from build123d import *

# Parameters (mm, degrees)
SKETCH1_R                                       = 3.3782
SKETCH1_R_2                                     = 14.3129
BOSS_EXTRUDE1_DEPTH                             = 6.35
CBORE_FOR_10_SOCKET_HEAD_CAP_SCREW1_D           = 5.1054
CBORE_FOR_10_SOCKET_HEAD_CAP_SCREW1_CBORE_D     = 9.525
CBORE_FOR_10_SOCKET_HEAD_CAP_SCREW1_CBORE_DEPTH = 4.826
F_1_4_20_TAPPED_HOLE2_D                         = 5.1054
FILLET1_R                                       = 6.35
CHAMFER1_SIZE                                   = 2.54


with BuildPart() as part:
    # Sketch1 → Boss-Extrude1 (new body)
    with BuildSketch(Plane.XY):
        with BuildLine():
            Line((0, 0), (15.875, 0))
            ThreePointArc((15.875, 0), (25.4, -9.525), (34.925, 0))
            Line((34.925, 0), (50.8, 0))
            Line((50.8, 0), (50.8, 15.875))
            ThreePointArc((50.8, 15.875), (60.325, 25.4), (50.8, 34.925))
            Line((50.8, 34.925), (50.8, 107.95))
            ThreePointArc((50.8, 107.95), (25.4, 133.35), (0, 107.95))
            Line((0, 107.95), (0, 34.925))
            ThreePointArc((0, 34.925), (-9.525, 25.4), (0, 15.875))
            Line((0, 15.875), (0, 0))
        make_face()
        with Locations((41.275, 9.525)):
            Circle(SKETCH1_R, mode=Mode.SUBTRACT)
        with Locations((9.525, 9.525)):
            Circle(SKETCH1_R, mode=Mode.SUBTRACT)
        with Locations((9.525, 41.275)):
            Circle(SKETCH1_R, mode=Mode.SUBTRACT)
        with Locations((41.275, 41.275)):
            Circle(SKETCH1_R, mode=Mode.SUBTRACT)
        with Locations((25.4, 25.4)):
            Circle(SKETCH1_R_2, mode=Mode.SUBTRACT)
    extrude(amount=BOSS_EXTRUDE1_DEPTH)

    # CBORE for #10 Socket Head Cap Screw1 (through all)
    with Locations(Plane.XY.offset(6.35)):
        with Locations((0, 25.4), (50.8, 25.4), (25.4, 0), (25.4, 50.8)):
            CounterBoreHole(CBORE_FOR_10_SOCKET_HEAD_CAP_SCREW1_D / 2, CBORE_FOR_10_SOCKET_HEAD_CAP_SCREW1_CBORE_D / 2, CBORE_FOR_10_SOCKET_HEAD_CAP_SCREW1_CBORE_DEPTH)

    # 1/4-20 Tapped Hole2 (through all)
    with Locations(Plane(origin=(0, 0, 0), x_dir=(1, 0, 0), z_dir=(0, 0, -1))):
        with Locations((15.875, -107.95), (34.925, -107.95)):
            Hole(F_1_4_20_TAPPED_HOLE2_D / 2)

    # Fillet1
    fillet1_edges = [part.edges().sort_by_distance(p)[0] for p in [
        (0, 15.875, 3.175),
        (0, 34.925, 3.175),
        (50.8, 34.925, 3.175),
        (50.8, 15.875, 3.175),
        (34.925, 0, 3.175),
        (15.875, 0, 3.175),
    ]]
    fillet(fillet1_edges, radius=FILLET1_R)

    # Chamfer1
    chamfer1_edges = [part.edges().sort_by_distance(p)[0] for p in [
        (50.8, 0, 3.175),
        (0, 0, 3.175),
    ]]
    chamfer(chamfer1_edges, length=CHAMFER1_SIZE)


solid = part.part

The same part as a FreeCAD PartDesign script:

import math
import FreeCAD as App
import Part
import Sketcher

V = App.Vector
Q = App.Units.Quantity


def edges_at(feature, points):
    """Names of the edges that pass closest to the given points."""
    edges = feature.Shape.Edges
    near = lambda p: min(range(len(edges)), key=lambda i: edges[i].distToShape(Part.Vertex(*p))[0])
    return sorted({f"Edge{near(p) + 1}" for p in points})

doc = App.newDocument("Part")
body = doc.addObject("PartDesign::Body", "Body")

sketch1 = doc.addObject("Sketcher::SketchObject", "Sketch")
body.addObject(sketch1)
sketch1.AttachmentSupport = (doc.XY_Plane, [""])
sketch1.MapMode = "FlatFace"
sketch1.addGeometry([
    Part.LineSegment(V(0, 0, 0), V(15.9, 0, 0)),
    Part.ArcOfCircle(Part.Circle(V(25.4, 0, 0), V(0, 0, 1), 9.5), math.radians(180), math.radians(360)),
    Part.LineSegment(V(34.9, 0, 0), V(50.8, 0, 0)),
    Part.LineSegment(V(50.8, 0, 0), V(50.8, 15.9, 0)),
    Part.ArcOfCircle(Part.Circle(V(50.8, 25.4, 0), V(0, 0, 1), 9.5), math.radians(-90), math.radians(90)),
    Part.LineSegment(V(50.8, 34.9, 0), V(50.8, 108, 0)),
    Part.ArcOfCircle(Part.Circle(V(25.4, 108, 0), V(0, 0, 1), 25.4), math.radians(0), math.radians(180)),
    Part.LineSegment(V(0, 108, 0), V(0, 34.9, 0)),
    Part.ArcOfCircle(Part.Circle(V(0, 25.4, 0), V(0, 0, 1), 9.5), math.radians(90), math.radians(270)),
    Part.LineSegment(V(0, 15.9, 0), V(0, 0, 0)),
    Part.Circle(V(9.5, 9.5, 0), V(0, 0, 1), 3.4),
    Part.Circle(V(41.3, 9.5, 0), V(0, 0, 1), 3.4),
    Part.Circle(V(25.4, 25.4, 0), V(0, 0, 1), 14.3),
    Part.Circle(V(9.5, 41.3, 0), V(0, 0, 1), 3.4),
    Part.Circle(V(41.3, 41.3, 0), V(0, 0, 1), 3.4),
], False)
sketch1.addConstraint([
    Sketcher.Constraint("Coincident", 0, 2, 1, 1),
    Sketcher.Constraint("Coincident", 1, 2, 2, 1),
    Sketcher.Constraint("Coincident", 2, 2, 3, 1),
    Sketcher.Constraint("Coincident", 3, 2, 4, 1),
    Sketcher.Constraint("Coincident", 4, 2, 5, 1),
    Sketcher.Constraint("Tangent", 5, 2, 6, 1),
    Sketcher.Constraint("Tangent", 6, 2, 7, 1),
    Sketcher.Constraint("Coincident", 7, 2, 8, 1),
    Sketcher.Constraint("Coincident", 8, 2, 9, 1),
    Sketcher.Constraint("Coincident", 9, 2, 0, 1),
    Sketcher.Constraint("Horizontal", 0),
    Sketcher.Constraint("Horizontal", 2),
    Sketcher.Constraint("Vertical", 3),
    Sketcher.Constraint("Vertical", 5),
    Sketcher.Constraint("Vertical", 7),
    Sketcher.Constraint("Vertical", 9),
    Sketcher.Constraint("Coincident", 9, 2, -1, 1),
    Sketcher.Constraint("Equal", 1, 4),
    Sketcher.Constraint("Equal", 4, 8),
    Sketcher.Constraint("Equal", 10, 11),
    Sketcher.Constraint("Equal", 11, 13),
    Sketcher.Constraint("Equal", 13, 14),
    Sketcher.Constraint("PointOnObject", 1, 3, -1),
    Sketcher.Constraint("PointOnObject", 8, 3, -2),
    Sketcher.Constraint("PointOnObject", 1, 2, -1),
    Sketcher.Constraint("PointOnObject", 6, 2, -2),
    Sketcher.Constraint("Horizontal", 4, 3, 8, 3),
    Sketcher.Constraint("Horizontal", 10, 3, 11, 3),
    Sketcher.Constraint("Horizontal", 8, 3, 12, 3),
    Sketcher.Constraint("Horizontal", 13, 3, 14, 3),
    Sketcher.Constraint("Vertical", 1, 3, 6, 3),
    Sketcher.Constraint("Vertical", 6, 3, 12, 3),
    Sketcher.Constraint("Vertical", 10, 3, 13, 3),
    Sketcher.Constraint("Vertical", 11, 3, 14, 3),
    Sketcher.Constraint("Vertical", 4, 3, 2, 2),
    Sketcher.Constraint("Vertical", 3, 2, 4, 2),
    Sketcher.Constraint("Equal", 2, 3),
    Sketcher.Constraint("Radius", 6, Q("1 in")),
    Sketcher.Constraint("Diameter", 10, Q("0.266 in")),
    Sketcher.Constraint("Diameter", 12, Q("1.127 in")),
    Sketcher.Constraint("Radius", 1, Q("0.375 in")),
    Sketcher.Constraint("DistanceX", 0, 2, 11, 3, Q("1 in")),
    Sketcher.Constraint("DistanceX", 10, 3, 1, 2, Q("1 in")),
    Sketcher.Constraint("DistanceY", 11, 3, 4, 2, Q("1 in")),
    Sketcher.Constraint("DistanceY", 5, 1, 5, 2, Q("2.875 in")),
    Sketcher.Constraint("DistanceY", 10, 3, 13, 3, Q("1.25 in")),
])
pad1 = doc.addObject("PartDesign::Pad", "Pad")
body.addObject(pad1)
pad1.Profile = sketch1
pad1.Length = Q("0.25 in")

sketch2 = doc.addObject("Sketcher::SketchObject", "Sketch001")
body.addObject(sketch2)
sketch2.AttachmentSupport = (doc.XY_Plane, [""])
sketch2.MapMode = "FlatFace"
sketch2.AttachmentOffset = App.Placement(V(0, 0, 0.25 * 25.4), App.Rotation())
sketch2.addGeometry([
    Part.Circle(V(0, 25.4, 0), V(0, 0, 1), 2.6),
    Part.Circle(V(50.8, 25.4, 0), V(0, 0, 1), 2.6),
    Part.Circle(V(25.4, 0, 0), V(0, 0, 1), 2.6),
    Part.Circle(V(25.4, 50.8, 0), V(0, 0, 1), 2.6),
], False)
sketch2.addConstraint([
    Sketcher.Constraint("Equal", 0, 1),
    Sketcher.Constraint("Equal", 1, 2),
    Sketcher.Constraint("Equal", 2, 3),
    Sketcher.Constraint("PointOnObject", 0, 3, -2),
    Sketcher.Constraint("PointOnObject", 2, 3, -1),
    Sketcher.Constraint("Horizontal", 0, 3, 1, 3),
    Sketcher.Constraint("Vertical", 2, 3, 3, 3),
    Sketcher.Constraint("Diameter", 0, Q("0.201 in")),
    Sketcher.Constraint("DistanceY", -1, 1, 0, 3, Q("1 in")),
    Sketcher.Constraint("DistanceX", -1, 1, 1, 3, Q("2 in")),
    Sketcher.Constraint("DistanceX", -1, 1, 2, 3, Q("1 in")),
    Sketcher.Constraint("DistanceY", -1, 1, 3, 3, Q("2 in")),
])
doc.recompute()
hole = doc.addObject("PartDesign::Hole", "Hole")
body.addObject(hole)
hole.Profile = sketch2
hole.ThreadType = "None"
hole.Diameter = Q("0.201 in")
hole.DepthType = "ThroughAll"
hole.HoleCutType = "Counterbore"
hole.HoleCutDiameter = Q("0.375 in")
hole.HoleCutDepth = Q("0.19 in")

sketch3 = doc.addObject("Sketcher::SketchObject", "Sketch002")
body.addObject(sketch3)
sketch3.AttachmentSupport = (doc.XY_Plane, [""])
sketch3.MapMode = "FlatFace"
sketch3.addGeometry([
    Part.Circle(V(15.9, 108, 0), V(0, 0, 1), 2.6),
    Part.Circle(V(34.9, 108, 0), V(0, 0, 1), 2.6),
], False)
sketch3.addConstraint([
    Sketcher.Constraint("Equal", 0, 1),
    Sketcher.Constraint("Horizontal", 0, 3, 1, 3),
    Sketcher.Constraint("Diameter", 0, Q("0.201 in")),
    Sketcher.Constraint("DistanceY", -1, 1, 0, 3, Q("4.25 in")),
    Sketcher.Constraint("DistanceX", 0, 3, 1, 3, Q("0.75 in")),
    Sketcher.Constraint("DistanceX", -1, 1, 0, 3, Q("0.625 in")),
])
doc.recompute()
hole2 = doc.addObject("PartDesign::Hole", "Hole001")
body.addObject(hole2)
hole2.Profile = sketch3
hole2.ThreadType = "None"
hole2.Diameter = Q("0.201 in")
hole2.DepthType = "ThroughAll"
hole2.Reversed = True
doc.recompute()

fillet = doc.addObject("PartDesign::Fillet", "Fillet")
body.addObject(fillet)
fillet.Base = (hole2, edges_at(hole2, [
    (0, 15.875, 3.175),
    (0, 34.925, 3.175),
    (50.8, 34.925, 3.175),
    (50.8, 15.875, 3.175),
    (34.925, 0, 3.175),
    (15.875, 0, 3.175),
]))
fillet.Radius = Q("0.25 in")
doc.recompute()

chamfer = doc.addObject("PartDesign::Chamfer", "Chamfer")
body.addObject(chamfer)
chamfer.Base = (fillet, edges_at(fillet, [(50.8, 0, 3.175), (0, 0, 3.175)]))
chamfer.Size = Q("0.1 in")

doc.recompute()
